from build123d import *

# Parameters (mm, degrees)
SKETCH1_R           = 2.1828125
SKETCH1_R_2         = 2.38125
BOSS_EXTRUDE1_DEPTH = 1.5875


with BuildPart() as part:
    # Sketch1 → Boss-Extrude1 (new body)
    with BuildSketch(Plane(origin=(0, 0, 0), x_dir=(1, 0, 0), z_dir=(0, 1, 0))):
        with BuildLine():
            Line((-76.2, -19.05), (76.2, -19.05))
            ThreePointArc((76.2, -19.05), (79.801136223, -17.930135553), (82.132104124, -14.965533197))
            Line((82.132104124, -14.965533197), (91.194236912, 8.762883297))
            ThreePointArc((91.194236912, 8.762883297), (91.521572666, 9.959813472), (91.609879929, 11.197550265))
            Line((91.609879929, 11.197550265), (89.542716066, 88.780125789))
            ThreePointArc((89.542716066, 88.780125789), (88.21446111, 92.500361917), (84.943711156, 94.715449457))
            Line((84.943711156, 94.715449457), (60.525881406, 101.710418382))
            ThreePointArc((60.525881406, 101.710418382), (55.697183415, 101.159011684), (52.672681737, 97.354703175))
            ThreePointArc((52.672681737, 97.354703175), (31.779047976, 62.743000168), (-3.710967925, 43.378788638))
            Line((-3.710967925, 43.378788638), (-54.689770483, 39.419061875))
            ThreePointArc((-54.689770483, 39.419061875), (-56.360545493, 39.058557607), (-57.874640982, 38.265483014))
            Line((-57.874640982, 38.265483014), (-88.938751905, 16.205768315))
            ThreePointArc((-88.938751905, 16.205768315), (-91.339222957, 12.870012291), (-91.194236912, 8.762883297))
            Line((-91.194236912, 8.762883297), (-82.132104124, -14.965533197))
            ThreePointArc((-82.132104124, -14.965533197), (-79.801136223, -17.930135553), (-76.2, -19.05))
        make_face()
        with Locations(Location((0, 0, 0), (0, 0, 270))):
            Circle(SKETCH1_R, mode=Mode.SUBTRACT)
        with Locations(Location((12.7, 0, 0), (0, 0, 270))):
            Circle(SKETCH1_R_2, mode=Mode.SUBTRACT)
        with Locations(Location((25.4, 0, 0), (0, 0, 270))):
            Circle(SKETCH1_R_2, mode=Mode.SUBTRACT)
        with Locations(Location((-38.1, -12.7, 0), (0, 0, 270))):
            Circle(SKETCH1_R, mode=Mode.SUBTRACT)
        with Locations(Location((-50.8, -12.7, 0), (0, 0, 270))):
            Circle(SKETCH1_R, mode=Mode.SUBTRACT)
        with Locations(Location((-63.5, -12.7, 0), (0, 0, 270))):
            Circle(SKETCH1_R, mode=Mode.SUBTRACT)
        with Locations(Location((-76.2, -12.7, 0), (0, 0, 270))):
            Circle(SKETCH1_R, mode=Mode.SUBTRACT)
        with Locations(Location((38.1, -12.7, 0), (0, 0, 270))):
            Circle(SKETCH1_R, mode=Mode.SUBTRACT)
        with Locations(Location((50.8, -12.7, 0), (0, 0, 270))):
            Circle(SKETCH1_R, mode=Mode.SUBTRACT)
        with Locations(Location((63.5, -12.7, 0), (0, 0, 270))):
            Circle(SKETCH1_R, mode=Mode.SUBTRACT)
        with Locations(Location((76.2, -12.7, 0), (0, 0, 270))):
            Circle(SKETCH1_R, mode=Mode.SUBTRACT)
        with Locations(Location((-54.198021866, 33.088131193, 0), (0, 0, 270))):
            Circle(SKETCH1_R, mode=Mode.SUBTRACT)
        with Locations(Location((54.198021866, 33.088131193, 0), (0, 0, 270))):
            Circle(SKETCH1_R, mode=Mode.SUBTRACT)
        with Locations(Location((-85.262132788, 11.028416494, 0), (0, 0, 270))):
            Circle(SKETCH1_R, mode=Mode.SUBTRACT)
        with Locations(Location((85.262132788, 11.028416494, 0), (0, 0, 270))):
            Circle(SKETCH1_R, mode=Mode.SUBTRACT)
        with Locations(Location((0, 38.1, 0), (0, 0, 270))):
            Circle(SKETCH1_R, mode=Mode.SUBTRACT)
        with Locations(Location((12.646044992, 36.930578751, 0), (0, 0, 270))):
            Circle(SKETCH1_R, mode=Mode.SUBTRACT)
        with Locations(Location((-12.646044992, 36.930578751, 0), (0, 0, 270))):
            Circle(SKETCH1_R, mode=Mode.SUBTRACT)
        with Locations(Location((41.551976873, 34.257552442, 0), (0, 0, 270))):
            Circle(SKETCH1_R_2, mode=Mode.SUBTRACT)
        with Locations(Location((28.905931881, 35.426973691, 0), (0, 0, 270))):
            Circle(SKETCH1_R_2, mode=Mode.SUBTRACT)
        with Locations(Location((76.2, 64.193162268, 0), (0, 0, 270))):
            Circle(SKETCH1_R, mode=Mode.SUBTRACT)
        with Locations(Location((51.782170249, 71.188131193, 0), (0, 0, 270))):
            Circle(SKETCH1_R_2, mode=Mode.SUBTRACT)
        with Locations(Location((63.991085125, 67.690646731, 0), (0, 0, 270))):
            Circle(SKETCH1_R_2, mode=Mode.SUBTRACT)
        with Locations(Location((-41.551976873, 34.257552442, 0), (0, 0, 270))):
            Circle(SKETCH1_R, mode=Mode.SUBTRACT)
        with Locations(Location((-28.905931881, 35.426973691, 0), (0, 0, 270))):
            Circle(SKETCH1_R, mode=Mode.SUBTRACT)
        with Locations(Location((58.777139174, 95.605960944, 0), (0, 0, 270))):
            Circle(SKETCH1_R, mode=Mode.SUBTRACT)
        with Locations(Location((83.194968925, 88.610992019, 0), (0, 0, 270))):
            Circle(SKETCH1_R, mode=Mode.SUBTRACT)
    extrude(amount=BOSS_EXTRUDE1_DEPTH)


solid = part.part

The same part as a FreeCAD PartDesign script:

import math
import FreeCAD as App
import Part
import Sketcher
from FreeCAD import Vector
Q = App.Units.Quantity

doc = App.newDocument("Part")
body = doc.addObject("PartDesign::Body", "Body")

sketch1 = doc.addObject("Sketcher::SketchObject", "Sketch")
body.addObject(sketch1)
sketch1.AttachmentSupport = (doc.XZ_Plane, [""])
sketch1.MapMode = "FlatFace"
sketch1.addGeometry(Part.LineSegment(Vector(-76.2, 19.05, 0), Vector(76.2, 19.05, 0)), False)
sketch1.addGeometry(Part.ArcOfCircle(Part.Circle(Vector(76.2, 12.7, 0), Vector(0, 0, 1), 6.35), math.radians(20.902385), math.radians(90)), False)
sketch1.addGeometry(Part.LineSegment(Vector(82.132104, 14.965533, 0), Vector(91.194237, -8.762883, 0)), False)
sketch1.addGeometry(Part.ArcOfCircle(Part.Circle(Vector(85.262133, -11.028416, 0), Vector(0, 0, 1), 6.35), math.radians(-1.526267), math.radians(20.902385)), False)
sketch1.addGeometry(Part.LineSegment(Vector(91.60988, -11.19755, 0), Vector(89.542716, -88.780126, 0)), False)
sketch1.addGeometry(Part.ArcOfCircle(Part.Circle(Vector(83.194969, -88.610992, 0), Vector(0, 0, 1), 6.35), math.radians(-74.014595), math.radians(-1.526267)), False)
sketch1.addGeometry(Part.LineSegment(Vector(84.943711, -94.715449, 0), Vector(60.525881, -101.710418, 0)), False)
sketch1.addGeometry(Part.ArcOfCircle(Part.Circle(Vector(58.777139, -95.605961, 0), Vector(0, 0, 1), 6.35), math.radians(-164.014595), math.radians(-74.014595)), False)
sketch1.addGeometry(Part.ArcOfCircle(Part.Circle(Vector(-21.769388, -118.680102, 0), Vector(0, 0, 1), 77.436389), math.radians(15.985405), math.radians(76.514264)), False)
sketch1.addGeometry(Part.LineSegment(Vector(-3.710968, -43.378789, 0), Vector(-54.68977, -39.419062, 0)), False)
sketch1.addGeometry(Part.ArcOfCircle(Part.Circle(Vector(-54.198022, -33.088131, 0), Vector(0, 0, 1), 6.35), math.radians(-125.379897), math.radians(-94.441474)), False)
sketch1.addGeometry(Part.LineSegment(Vector(-57.874641, -38.265483, 0), Vector(-88.938752, -16.205768, 0)), False)
sketch1.addGeometry(Part.ArcOfCircle(Part.Circle(Vector(-85.262133, -11.028416, 0), Vector(0, 0, 1), 6.35), math.radians(159.097615), math.radians(234.620103)), False)
sketch1.addGeometry(Part.LineSegment(Vector(-91.194237, -8.762883, 0), Vector(-82.132104, 14.965533, 0)), False)
sketch1.addGeometry(Part.ArcOfCircle(Part.Circle(Vector(-76.2, 12.7, 0), Vector(0, 0, 1), 6.35), math.radians(90), math.radians(159.097615)), False)
sketch1.addGeometry(Part.Circle(Vector(-76.2, 12.7, 0), Vector(0, 0, 1), 2.182812), False)
sketch1.addGeometry(Part.Circle(Vector(-63.5, 12.7, 0), Vector(0, 0, 1), 2.182812), False)
sketch1.addGeometry(Part.Circle(Vector(-50.8, 12.7, 0), Vector(0, 0, 1), 2.182812), False)
sketch1.addGeometry(Part.Circle(Vector(-85.262133, -11.028416, 0), Vector(0, 0, 1), 2.182812), False)
sketch1.addGeometry(Part.Circle(Vector(-38.1, 12.7, 0), Vector(0, 0, 1), 2.182812), False)
sketch1.addGeometry(Part.Circle(Vector(-54.198022, -33.088131, 0), Vector(0, 0, 1), 2.182812), False)
sketch1.addGeometry(Part.Circle(Vector(-41.551977, -34.257552, 0), Vector(0, 0, 1), 2.182812), False)
sketch1.addGeometry(Part.Circle(Vector(-28.905932, -35.426974, 0), Vector(0, 0, 1), 2.182812), False)
sketch1.addGeometry(Part.Circle(Vector(-12.646045, -36.930579, 0), Vector(0, 0, 1), 2.182812), False)
sketch1.addGeometry(Part.Circle(Vector(38.1, 12.7, 0), Vector(0, 0, 1), 2.182812), False)
sketch1.addGeometry(Part.Circle(Vector(0, 0, 0), Vector(0, 0, 1), 2.182812), False)
sketch1.addGeometry(Part.Circle(Vector(12.7, 0, 0), Vector(0, 0, 1), 2.38125), False)
sketch1.addGeometry(Part.Circle(Vector(25.4, 0, 0), Vector(0, 0, 1), 2.38125), False)
sketch1.addGeometry(Part.Circle(Vector(50.8, 12.7, 0), Vector(0, 0, 1), 2.182812), False)
sketch1.addGeometry(Part.Circle(Vector(63.5, 12.7, 0), Vector(0, 0, 1), 2.182812), False)
sketch1.addGeometry(Part.Circle(Vector(76.2, 12.7, 0), Vector(0, 0, 1), 2.182812), False)
sketch1.addGeometry(Part.Circle(Vector(85.262133, -11.028416, 0), Vector(0, 0, 1), 2.182812), False)
sketch1.addGeometry(Part.Circle(Vector(0, -38.1, 0), Vector(0, 0, 1), 2.182812), False)
sketch1.addGeometry(Part.Circle(Vector(12.646045, -36.930579, 0), Vector(0, 0, 1), 2.182812), False)
sketch1.addGeometry(Part.Circle(Vector(41.551977, -34.257552, 0), Vector(0, 0, 1), 2.38125), False)
sketch1.addGeometry(Part.Circle(Vector(28.905932, -35.426974, 0), Vector(0, 0, 1), 2.38125), False)
sketch1.addGeometry(Part.Circle(Vector(54.198022, -33.088131, 0), Vector(0, 0, 1), 2.182812), False)
sketch1.addGeometry(Part.Circle(Vector(63.991085, -67.690647, 0), Vector(0, 0, 1), 2.38125), False)
sketch1.addGeometry(Part.Circle(Vector(76.2, -64.193162, 0), Vector(0, 0, 1), 2.182812), False)
sketch1.addGeometry(Part.Circle(Vector(51.78217, -71.188131, 0), Vector(0, 0, 1), 2.38125), False)
sketch1.addGeometry(Part.Circle(Vector(58.777139, -95.605961, 0), Vector(0, 0, 1), 2.182812), False)
sketch1.addGeometry(Part.Circle(Vector(83.194969, -88.610992, 0), Vector(0, 0, 1), 2.182812), False)
sketch1.addConstraint(Sketcher.Constraint("Coincident", 0, 2, 1, 2))
sketch1.addConstraint(Sketcher.Constraint("Coincident", 1, 1, 2, 1))
sketch1.addConstraint(Sketcher.Constraint("Coincident", 2, 2, 3, 2))
sketch1.addConstraint(Sketcher.Constraint("Coincident", 3, 1, 4, 1))
sketch1.addConstraint(Sketcher.Constraint("Coincident", 4, 2, 5, 2))
sketch1.addConstraint(Sketcher.Constraint("Coincident", 5, 1, 6, 1))
sketch1.addConstraint(Sketcher.Constraint("Coincident", 6, 2, 7, 2))
sketch1.addConstraint(Sketcher.Constraint("Coincident", 7, 1, 8, 1))
sketch1.addConstraint(Sketcher.Constraint("Coincident", 8, 2, 9, 1))
sketch1.addConstraint(Sketcher.Constraint("Coincident", 9, 2, 10, 2))
sketch1.addConstraint(Sketcher.Constraint("Coincident", 10, 1, 11, 1))
sketch1.addConstraint(Sketcher.Constraint("Coincident", 11, 2, 12, 2))
sketch1.addConstraint(Sketcher.Constraint("Coincident", 12, 1, 13, 1))
sketch1.addConstraint(Sketcher.Constraint("Coincident", 13, 2, 14, 2))
sketch1.addConstraint(Sketcher.Constraint("Coincident", 14, 1, 0, 1))
sketch1.addConstraint(Sketcher.Constraint("Horizontal", 0))
sketch1.addConstraint(Sketcher.Constraint("Coincident", 25, 3, -1, 1))
sketch1.addConstraint(Sketcher.Constraint("Coincident", 15, 3, 14, 3))
sketch1.addConstraint(Sketcher.Constraint("Coincident", 18, 3, 12, 3))
sketch1.addConstraint(Sketcher.Constraint("Coincident", 20, 3, 10, 3))
sketch1.addConstraint(Sketcher.Constraint("Coincident", 30, 3, 1, 3))
sketch1.addConstraint(Sketcher.Constraint("Coincident", 31, 3, 3, 3))
sketch1.addConstraint(Sketcher.Constraint("Coincident", 40, 3, 7, 3))
sketch1.addConstraint(Sketcher.Constraint("Coincident", 41, 3, 5, 3))
sketch1.addConstraint(Sketcher.Constraint("PointOnObject", 26, 3, -1))
sketch1.addConstraint(Sketcher.Constraint("PointOnObject", 27, 3, -1))
sketch1.addConstraint(Sketcher.Constraint("PointOnObject", 32, 3, -2))
sketch1.addConstraint(Sketcher.Constraint("DistanceX", 0, 1, 0, 2, Q("6 in")))
sketch1.addConstraint(Sketcher.Constraint("Radius", 1, Q("0.25 in")))
sketch1.addConstraint(Sketcher.Constraint("Radius", 3, Q("0.25 in")))
sketch1.addConstraint(Sketcher.Constraint("Radius", 5, Q("0.25 in")))
sketch1.addConstraint(Sketcher.Constraint("Radius", 7, Q("0.25 in")))
sketch1.addConstraint(Sketcher.Constraint("Radius", 10, Q("0.25 in")))
sketch1.addConstraint(Sketcher.Constraint("Radius", 12, Q("0.25 in")))
sketch1.addConstraint(Sketcher.Constraint("Radius", 14, Q("0.25 in")))
sketch1.addConstraint(Sketcher.Constraint("Distance", 2, Q("1 in")))
sketch1.addConstraint(Sketcher.Constraint("Distance", 6, Q("1 in")))
sketch1.addConstraint(Sketcher.Constraint("Distance", 13, Q("1 in")))
sketch1.addConstraint(Sketcher.Constraint("Diameter", 15, Q("0.171875 in")))
sketch1.addConstraint(Sketcher.Constraint("Diameter", 16, Q("0.171875 in")))
sketch1.addConstraint(Sketcher.Constraint("Diameter", 17, Q("0.171875 in")))
sketch1.addConstraint(Sketcher.Constraint("Diameter", 18, Q("0.171875 in")))
sketch1.addConstraint(Sketcher.Constraint("Diameter", 19, Q("0.171875 in")))
sketch1.addConstraint(Sketcher.Constraint("Diameter", 20, Q("0.171875 in")))
sketch1.addConstraint(Sketcher.Constraint("Diameter", 21, Q("0.171875 in")))
sketch1.addConstraint(Sketcher.Constraint("Diameter", 22, Q("0.171875 in")))
sketch1.addConstraint(Sketcher.Constraint("Diameter", 23, Q("0.171875 in")))
sketch1.addConstraint(Sketcher.Constraint("Diameter", 24, Q("0.171875 in")))
sketch1.addConstraint(Sketcher.Constraint("Diameter", 25, Q("0.171875 in")))
sketch1.addConstraint(Sketcher.Constraint("Diameter", 26, Q("0.1875 in")))
sketch1.addConstraint(Sketcher.Constraint("Diameter", 27, Q("0.1875 in")))
sketch1.addConstraint(Sketcher.Constraint("Diameter", 28, Q("0.171875 in")))
sketch1.addConstraint(Sketcher.Constraint("Diameter", 29, Q("0.171875 in")))
sketch1.addConstraint(Sketcher.Constraint("Diameter", 30, Q("0.171875 in")))
sketch1.addConstraint(Sketcher.Constraint("Diameter", 31, Q("0.171875 in")))
sketch1.addConstraint(Sketcher.Constraint("Diameter", 32, Q("0.171875 in")))
sketch1.addConstraint(Sketcher.Constraint("Diameter", 33, Q("0.171875 in")))
sketch1.addConstraint(Sketcher.Constraint("Diameter", 34, Q("0.1875 in")))
sketch1.addConstraint(Sketcher.Constraint("Diameter", 35, Q("0.1875 in")))
sketch1.addConstraint(Sketcher.Constraint("Diameter", 36, Q("0.171875 in")))
sketch1.addConstraint(Sketcher.Constraint("Diameter", 37, Q("0.1875 in")))
sketch1.addConstraint(Sketcher.Constraint("Diameter", 38, Q("0.171875 in")))
sketch1.addConstraint(Sketcher.Constraint("Diameter", 39, Q("0.1875 in")))
sketch1.addConstraint(Sketcher.Constraint("Diameter", 40, Q("0.171875 in")))
sketch1.addConstraint(Sketcher.Constraint("Diameter", 41, Q("0.171875 in")))
sketch1.addConstraint(Sketcher.Constraint("DistanceX", -1, 1, 1, 3, Q("3 in")))
sketch1.addConstraint(Sketcher.Constraint("DistanceX", 14, 3, -1, 1, Q("3 in")))
sketch1.addConstraint(Sketcher.Constraint("DistanceX", 17, 3, -1, 1, Q("2 in")))
sketch1.addConstraint(Sketcher.Constraint("DistanceX", -1, 1, 27, 3, Q("1 in")))
sketch1.addConstraint(Sketcher.Constraint("DistanceX", -1, 1, 28, 3, Q("2 in")))
sketch1.addConstraint(Sketcher.Constraint("DistanceX", -1, 1, 38, 3, Q("3 in")))
sketch1.addConstraint(Sketcher.Constraint("DistanceX", -1, 1, 0, 2, Q("3 in")))
sketch1.addConstraint(Sketcher.Constraint("DistanceX", 16, 3, 19, 3, Q("1 in")))
sketch1.addConstraint(Sketcher.Constraint("DistanceX", 19, 3, 24, 3, Q("3 in")))
sketch1.addConstraint(Sketcher.Constraint("DistanceX", 26, 3, 24, 3, Q("1 in")))
sketch1.addConstraint(Sketcher.Constraint("DistanceX", 24, 3, 29, 3, Q("1 in")))
sketch1.addConstraint(Sketcher.Constraint("Distance", 11, Q("1.5 in")))
sketch1.addConstraint(Sketcher.Constraint("DistanceY", -1, 1, 1, 3, Q("0.5 in")))
sketch1.addConstraint(Sketcher.Constraint("DistanceX", 16, 3, -1, 1, Q("2.5 in")))
sketch1.addConstraint(Sketcher.Constraint("DistanceY", -1, 1, 16, 3, Q("0.5 in")))
sketch1.addConstraint(Sketcher.Constraint("DistanceY", -1, 1, 17, 3, Q("0.5 in")))
sketch1.addConstraint(Sketcher.Constraint("DistanceY", -1, 1, 19, 3, Q("0.5 in")))
sketch1.addConstraint(Sketcher.Constraint("DistanceY", -1, 1, 24, 3, Q("0.5 in")))
sketch1.addConstraint(Sketcher.Constraint("DistanceY", -1, 1, 28, 3, Q("0.5 in")))
sketch1.addConstraint(Sketcher.Constraint("DistanceY", -1, 1, 29, 3, Q("0.5 in")))
sketch1.addConstraint(Sketcher.Constraint("DistanceY", 32, 3, -1, 1, Q("1.5 in")))
sketch1.addConstraint(Sketcher.Constraint("DistanceY", 39, 3, 36, 3, Q("1.5 in")))
sketch1.addConstraint(Sketcher.Constraint("Radius", 8, Q("77.436389 mm")))
sketch1.addConstraint(Sketcher.Constraint("DistanceY", 7, 3, 38, 3, Q("31.412799 mm")))
sketch1.addConstraint(Sketcher.Constraint("DistanceX", 39, 3, 5, 3, Q("31.412799 mm")))
sketch1.addConstraint(Sketcher.Constraint("DistanceX", 7, 1, 6, 2, Q("7.8532 mm")))
sketch1.addConstraint(Sketcher.Constraint("DistanceX", 8, 2, 35, 3, Q("32.6169 mm")))
sketch1.addConstraint(Sketcher.Constraint("Distance", 4, Q("77.61011 mm")))
sketch1.addConstraint(Sketcher.Constraint("DistanceX", -1, 1, 5, 3, Q("83.194969 mm")))
sketch1.addConstraint(Sketcher.Constraint("DistanceX", -1, 1, 7, 3, Q("58.777139 mm")))
sketch1.addConstraint(Sketcher.Constraint("DistanceY", 7, 3, -1, 1, Q("95.605961 mm")))
sketch1.addConstraint(Sketcher.Constraint("DistanceX", 10, 3, -1, 1, Q("54.198022 mm")))
sketch1.addConstraint(Sketcher.Constraint("DistanceY", 10, 3, -1, 1, Q("33.088131 mm")))
sketch1.addConstraint(Sketcher.Constraint("DistanceX", 22, 3, -1, 1, Q("28.905932 mm")))
sketch1.addConstraint(Sketcher.Constraint("DistanceY", 23, 3, -1, 1, Q("36.930579 mm")))
sketch1.addConstraint(Sketcher.Constraint("DistanceY", 33, 3, -1, 1, Q("36.930579 mm")))
sketch1.addConstraint(Sketcher.Constraint("DistanceX", -1, 1, 35, 3, Q("28.905932 mm")))
sketch1.addConstraint(Sketcher.Constraint("DistanceX", -1, 1, 36, 3, Q("54.198022 mm")))
sketch1.addConstraint(Sketcher.Constraint("DistanceY", 36, 3, -1, 1, Q("33.088131 mm")))
sketch1.addConstraint(Sketcher.Constraint("DistanceX", -1, 1, 3, 1, Q("91.60988 mm")))
sketch1.addConstraint(Sketcher.Constraint("DistanceY", 3, 1, -1, 1, Q("11.19755 mm")))
sketch1.addConstraint(Sketcher.Constraint("DistanceX", -1, 1, 5, 1, Q("84.943711 mm")))
sketch1.addConstraint(Sketcher.Constraint("DistanceY", 5, 1, -1, 1, Q("94.715449 mm")))
sketch1.addConstraint(Sketcher.Constraint("DistanceY", 8, 2, -1, 1, Q("43.378789 mm")))
sketch1.addConstraint(Sketcher.Constraint("DistanceX", 9, 2, -1, 1, Q("54.68977 mm")))
sketch1.addConstraint(Sketcher.Constraint("DistanceX", 10, 1, -1, 1, Q("57.874641 mm")))
sketch1.addConstraint(Sketcher.Constraint("DistanceX", 11, 2, -1, 1, Q("88.938752 mm")))
sketch1.addConstraint(Sketcher.Constraint("DistanceX", 8, 3, 3, 3, Q("107.031521 mm")))
sketch1.addConstraint(Sketcher.Constraint("DistanceX", 12, 3, 10, 3, Q("31.064111 mm")))
sketch1.addConstraint(Sketcher.Constraint("DistanceY", 21, 3, 20, 3, Q("1.169421 mm")))
sketch1.addConstraint(Sketcher.Constraint("DistanceY", 22, 3, 21, 3, Q("1.169421 mm")))
sketch1.addConstraint(Sketcher.Constraint("DistanceX", 21, 3, 23, 3, Q("28.905932 mm")))
sketch1.addConstraint(Sketcher.Constraint("DistanceX", 23, 3, 33, 3, Q("25.29209 mm")))
sketch1.addConstraint(Sketcher.Constraint("DistanceX", 33, 3, 34, 3, Q("28.905932 mm")))
sketch1.addConstraint(Sketcher.Constraint("DistanceY", 35, 3, 34, 3, Q("1.169421 mm")))
sketch1.addConstraint(Sketcher.Constraint("DistanceY", 34, 3, 36, 3, Q("1.169421 mm")))
sketch1.addConstraint(Sketcher.Constraint("DistanceX", 34, 3, 37, 3, Q("22.439108 mm")))
sketch1.addConstraint(Sketcher.Constraint("DistanceX", 1, 1, 3, 3, Q("3.130029 mm")))
sketch1.addConstraint(Sketcher.Constraint("DistanceX", 12, 3, 13, 2, Q("3.130029 mm")))
sketch1.addConstraint(Sketcher.Constraint("DistanceX", 21, 3, -1, 1, Q("41.551977 mm")))
sketch1.addConstraint(Sketcher.Constraint("DistanceY", 37, 3, -1, 1, Q("67.690647 mm")))
pad1 = doc.addObject("PartDesign::Pad", "Pad")
body.addObject(pad1)
pad1.Profile = sketch1
pad1.Length = Q("0.0625 in")
pad1.Reversed = True

doc.recompute()
